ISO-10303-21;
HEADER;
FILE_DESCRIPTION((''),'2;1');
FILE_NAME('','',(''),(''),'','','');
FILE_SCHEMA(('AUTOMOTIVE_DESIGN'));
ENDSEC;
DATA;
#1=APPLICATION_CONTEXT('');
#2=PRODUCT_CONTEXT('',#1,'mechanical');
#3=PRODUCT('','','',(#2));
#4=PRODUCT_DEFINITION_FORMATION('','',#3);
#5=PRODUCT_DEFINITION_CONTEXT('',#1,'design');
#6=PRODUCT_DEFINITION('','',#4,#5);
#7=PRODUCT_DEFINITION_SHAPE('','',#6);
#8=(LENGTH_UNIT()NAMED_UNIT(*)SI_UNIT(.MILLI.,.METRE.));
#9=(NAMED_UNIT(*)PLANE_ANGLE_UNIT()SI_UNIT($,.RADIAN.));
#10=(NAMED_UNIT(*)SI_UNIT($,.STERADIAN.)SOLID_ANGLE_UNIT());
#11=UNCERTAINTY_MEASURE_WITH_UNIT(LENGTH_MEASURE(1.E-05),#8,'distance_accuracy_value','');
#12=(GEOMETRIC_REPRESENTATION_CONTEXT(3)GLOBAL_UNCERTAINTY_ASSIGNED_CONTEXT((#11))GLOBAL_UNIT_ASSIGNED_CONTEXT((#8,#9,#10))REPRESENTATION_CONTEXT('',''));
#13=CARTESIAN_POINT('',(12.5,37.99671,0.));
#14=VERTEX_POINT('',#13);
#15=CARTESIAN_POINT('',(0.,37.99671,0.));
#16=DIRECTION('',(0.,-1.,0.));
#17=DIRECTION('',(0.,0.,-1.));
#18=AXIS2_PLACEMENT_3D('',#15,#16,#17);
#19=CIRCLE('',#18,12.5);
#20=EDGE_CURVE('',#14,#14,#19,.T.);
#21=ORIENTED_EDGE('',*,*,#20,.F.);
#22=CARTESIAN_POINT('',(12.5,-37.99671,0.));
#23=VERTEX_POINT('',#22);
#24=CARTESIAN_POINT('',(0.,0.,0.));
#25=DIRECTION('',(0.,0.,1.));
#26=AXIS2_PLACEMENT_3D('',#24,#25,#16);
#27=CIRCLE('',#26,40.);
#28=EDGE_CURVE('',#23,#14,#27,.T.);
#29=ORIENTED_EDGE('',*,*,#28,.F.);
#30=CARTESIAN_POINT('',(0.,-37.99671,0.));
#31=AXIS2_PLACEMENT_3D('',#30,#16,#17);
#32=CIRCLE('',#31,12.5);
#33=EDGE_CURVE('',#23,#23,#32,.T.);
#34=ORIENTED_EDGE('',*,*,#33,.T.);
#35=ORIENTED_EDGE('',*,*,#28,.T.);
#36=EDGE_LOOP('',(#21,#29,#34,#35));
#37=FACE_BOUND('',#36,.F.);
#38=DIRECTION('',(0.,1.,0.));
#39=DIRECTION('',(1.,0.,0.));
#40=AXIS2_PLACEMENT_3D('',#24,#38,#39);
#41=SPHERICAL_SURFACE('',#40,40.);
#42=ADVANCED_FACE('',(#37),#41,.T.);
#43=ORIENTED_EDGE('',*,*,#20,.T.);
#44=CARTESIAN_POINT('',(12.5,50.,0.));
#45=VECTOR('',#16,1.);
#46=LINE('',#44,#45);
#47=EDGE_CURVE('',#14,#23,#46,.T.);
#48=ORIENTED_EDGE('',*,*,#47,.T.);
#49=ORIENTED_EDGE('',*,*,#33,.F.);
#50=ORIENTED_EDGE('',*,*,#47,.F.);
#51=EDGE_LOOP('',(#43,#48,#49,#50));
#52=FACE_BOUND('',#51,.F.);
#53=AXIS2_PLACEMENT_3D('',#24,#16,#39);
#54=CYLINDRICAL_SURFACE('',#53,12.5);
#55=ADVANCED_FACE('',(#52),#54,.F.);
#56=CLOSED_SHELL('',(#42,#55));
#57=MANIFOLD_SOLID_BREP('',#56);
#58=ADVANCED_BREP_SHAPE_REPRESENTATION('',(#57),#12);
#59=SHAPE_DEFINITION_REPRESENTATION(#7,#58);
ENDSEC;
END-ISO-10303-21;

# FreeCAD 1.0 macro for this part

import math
import FreeCAD as App
import Part
import Sketcher
from FreeCAD import Vector
Q = App.Units.Quantity

doc = App.newDocument("Part")
body = doc.addObject("PartDesign::Body", "Body")

# Sketch on XY plane
sketch1 = doc.addObject("Sketcher::SketchObject", "Sketch")
body.addObject(sketch1)
sketch1.AttachmentSupport = (doc.XY_Plane, [""])
sketch1.MapMode = "FlatFace"
sketch1.addGeometry([
    Part.LineSegment(Vector(0, 40, 0), Vector(0, -40, 0)),
    Part.ArcOfCircle(Part.Circle(Vector(0, 0, 0), Vector(0, 0, 1), 40), math.radians(-90), math.radians(90)),
], False)
sketch1.addConstraint([
    Sketcher.Constraint("Coincident", 0, 1, 1, 2),
    Sketcher.Constraint("Coincident", 1, 1, 0, 2),
    Sketcher.Constraint("Vertical", 0),
    Sketcher.Constraint("Coincident", 1, 3, -1, 1),
    Sketcher.Constraint("PointOnObject", 0, 1, -2),
    Sketcher.Constraint("Radius", 1, Q("40 mm")),
])
revolution = doc.addObject("PartDesign::Revolution", "Revolution")
body.addObject(revolution)
revolution.Profile = sketch1
revolution.ReferenceAxis = (sketch1, ["V_Axis"])
revolution.Angle = 360

# Sketch on XZ plane
sketch2 = doc.addObject("Sketcher::SketchObject", "Sketch001")
body.addObject(sketch2)
sketch2.AttachmentSupport = (doc.XZ_Plane, [""])
sketch2.MapMode = "FlatFace"
sketch2.addGeometry(Part.Circle(Vector(0, 0, 0), Vector(0, 0, 1), 12), False)
sketch2.addConstraint([
    Sketcher.Constraint("Coincident", 0, 3, -1, 1),
    Sketcher.Constraint("Diameter", 0, Q("25 mm")),
])
pocket1 = doc.addObject("PartDesign::Pocket", "Pocket")
body.addObject(pocket1)
pocket1.Profile = sketch2
pocket1.Length = 100
pocket1.Midplane = True

doc.recompute()
